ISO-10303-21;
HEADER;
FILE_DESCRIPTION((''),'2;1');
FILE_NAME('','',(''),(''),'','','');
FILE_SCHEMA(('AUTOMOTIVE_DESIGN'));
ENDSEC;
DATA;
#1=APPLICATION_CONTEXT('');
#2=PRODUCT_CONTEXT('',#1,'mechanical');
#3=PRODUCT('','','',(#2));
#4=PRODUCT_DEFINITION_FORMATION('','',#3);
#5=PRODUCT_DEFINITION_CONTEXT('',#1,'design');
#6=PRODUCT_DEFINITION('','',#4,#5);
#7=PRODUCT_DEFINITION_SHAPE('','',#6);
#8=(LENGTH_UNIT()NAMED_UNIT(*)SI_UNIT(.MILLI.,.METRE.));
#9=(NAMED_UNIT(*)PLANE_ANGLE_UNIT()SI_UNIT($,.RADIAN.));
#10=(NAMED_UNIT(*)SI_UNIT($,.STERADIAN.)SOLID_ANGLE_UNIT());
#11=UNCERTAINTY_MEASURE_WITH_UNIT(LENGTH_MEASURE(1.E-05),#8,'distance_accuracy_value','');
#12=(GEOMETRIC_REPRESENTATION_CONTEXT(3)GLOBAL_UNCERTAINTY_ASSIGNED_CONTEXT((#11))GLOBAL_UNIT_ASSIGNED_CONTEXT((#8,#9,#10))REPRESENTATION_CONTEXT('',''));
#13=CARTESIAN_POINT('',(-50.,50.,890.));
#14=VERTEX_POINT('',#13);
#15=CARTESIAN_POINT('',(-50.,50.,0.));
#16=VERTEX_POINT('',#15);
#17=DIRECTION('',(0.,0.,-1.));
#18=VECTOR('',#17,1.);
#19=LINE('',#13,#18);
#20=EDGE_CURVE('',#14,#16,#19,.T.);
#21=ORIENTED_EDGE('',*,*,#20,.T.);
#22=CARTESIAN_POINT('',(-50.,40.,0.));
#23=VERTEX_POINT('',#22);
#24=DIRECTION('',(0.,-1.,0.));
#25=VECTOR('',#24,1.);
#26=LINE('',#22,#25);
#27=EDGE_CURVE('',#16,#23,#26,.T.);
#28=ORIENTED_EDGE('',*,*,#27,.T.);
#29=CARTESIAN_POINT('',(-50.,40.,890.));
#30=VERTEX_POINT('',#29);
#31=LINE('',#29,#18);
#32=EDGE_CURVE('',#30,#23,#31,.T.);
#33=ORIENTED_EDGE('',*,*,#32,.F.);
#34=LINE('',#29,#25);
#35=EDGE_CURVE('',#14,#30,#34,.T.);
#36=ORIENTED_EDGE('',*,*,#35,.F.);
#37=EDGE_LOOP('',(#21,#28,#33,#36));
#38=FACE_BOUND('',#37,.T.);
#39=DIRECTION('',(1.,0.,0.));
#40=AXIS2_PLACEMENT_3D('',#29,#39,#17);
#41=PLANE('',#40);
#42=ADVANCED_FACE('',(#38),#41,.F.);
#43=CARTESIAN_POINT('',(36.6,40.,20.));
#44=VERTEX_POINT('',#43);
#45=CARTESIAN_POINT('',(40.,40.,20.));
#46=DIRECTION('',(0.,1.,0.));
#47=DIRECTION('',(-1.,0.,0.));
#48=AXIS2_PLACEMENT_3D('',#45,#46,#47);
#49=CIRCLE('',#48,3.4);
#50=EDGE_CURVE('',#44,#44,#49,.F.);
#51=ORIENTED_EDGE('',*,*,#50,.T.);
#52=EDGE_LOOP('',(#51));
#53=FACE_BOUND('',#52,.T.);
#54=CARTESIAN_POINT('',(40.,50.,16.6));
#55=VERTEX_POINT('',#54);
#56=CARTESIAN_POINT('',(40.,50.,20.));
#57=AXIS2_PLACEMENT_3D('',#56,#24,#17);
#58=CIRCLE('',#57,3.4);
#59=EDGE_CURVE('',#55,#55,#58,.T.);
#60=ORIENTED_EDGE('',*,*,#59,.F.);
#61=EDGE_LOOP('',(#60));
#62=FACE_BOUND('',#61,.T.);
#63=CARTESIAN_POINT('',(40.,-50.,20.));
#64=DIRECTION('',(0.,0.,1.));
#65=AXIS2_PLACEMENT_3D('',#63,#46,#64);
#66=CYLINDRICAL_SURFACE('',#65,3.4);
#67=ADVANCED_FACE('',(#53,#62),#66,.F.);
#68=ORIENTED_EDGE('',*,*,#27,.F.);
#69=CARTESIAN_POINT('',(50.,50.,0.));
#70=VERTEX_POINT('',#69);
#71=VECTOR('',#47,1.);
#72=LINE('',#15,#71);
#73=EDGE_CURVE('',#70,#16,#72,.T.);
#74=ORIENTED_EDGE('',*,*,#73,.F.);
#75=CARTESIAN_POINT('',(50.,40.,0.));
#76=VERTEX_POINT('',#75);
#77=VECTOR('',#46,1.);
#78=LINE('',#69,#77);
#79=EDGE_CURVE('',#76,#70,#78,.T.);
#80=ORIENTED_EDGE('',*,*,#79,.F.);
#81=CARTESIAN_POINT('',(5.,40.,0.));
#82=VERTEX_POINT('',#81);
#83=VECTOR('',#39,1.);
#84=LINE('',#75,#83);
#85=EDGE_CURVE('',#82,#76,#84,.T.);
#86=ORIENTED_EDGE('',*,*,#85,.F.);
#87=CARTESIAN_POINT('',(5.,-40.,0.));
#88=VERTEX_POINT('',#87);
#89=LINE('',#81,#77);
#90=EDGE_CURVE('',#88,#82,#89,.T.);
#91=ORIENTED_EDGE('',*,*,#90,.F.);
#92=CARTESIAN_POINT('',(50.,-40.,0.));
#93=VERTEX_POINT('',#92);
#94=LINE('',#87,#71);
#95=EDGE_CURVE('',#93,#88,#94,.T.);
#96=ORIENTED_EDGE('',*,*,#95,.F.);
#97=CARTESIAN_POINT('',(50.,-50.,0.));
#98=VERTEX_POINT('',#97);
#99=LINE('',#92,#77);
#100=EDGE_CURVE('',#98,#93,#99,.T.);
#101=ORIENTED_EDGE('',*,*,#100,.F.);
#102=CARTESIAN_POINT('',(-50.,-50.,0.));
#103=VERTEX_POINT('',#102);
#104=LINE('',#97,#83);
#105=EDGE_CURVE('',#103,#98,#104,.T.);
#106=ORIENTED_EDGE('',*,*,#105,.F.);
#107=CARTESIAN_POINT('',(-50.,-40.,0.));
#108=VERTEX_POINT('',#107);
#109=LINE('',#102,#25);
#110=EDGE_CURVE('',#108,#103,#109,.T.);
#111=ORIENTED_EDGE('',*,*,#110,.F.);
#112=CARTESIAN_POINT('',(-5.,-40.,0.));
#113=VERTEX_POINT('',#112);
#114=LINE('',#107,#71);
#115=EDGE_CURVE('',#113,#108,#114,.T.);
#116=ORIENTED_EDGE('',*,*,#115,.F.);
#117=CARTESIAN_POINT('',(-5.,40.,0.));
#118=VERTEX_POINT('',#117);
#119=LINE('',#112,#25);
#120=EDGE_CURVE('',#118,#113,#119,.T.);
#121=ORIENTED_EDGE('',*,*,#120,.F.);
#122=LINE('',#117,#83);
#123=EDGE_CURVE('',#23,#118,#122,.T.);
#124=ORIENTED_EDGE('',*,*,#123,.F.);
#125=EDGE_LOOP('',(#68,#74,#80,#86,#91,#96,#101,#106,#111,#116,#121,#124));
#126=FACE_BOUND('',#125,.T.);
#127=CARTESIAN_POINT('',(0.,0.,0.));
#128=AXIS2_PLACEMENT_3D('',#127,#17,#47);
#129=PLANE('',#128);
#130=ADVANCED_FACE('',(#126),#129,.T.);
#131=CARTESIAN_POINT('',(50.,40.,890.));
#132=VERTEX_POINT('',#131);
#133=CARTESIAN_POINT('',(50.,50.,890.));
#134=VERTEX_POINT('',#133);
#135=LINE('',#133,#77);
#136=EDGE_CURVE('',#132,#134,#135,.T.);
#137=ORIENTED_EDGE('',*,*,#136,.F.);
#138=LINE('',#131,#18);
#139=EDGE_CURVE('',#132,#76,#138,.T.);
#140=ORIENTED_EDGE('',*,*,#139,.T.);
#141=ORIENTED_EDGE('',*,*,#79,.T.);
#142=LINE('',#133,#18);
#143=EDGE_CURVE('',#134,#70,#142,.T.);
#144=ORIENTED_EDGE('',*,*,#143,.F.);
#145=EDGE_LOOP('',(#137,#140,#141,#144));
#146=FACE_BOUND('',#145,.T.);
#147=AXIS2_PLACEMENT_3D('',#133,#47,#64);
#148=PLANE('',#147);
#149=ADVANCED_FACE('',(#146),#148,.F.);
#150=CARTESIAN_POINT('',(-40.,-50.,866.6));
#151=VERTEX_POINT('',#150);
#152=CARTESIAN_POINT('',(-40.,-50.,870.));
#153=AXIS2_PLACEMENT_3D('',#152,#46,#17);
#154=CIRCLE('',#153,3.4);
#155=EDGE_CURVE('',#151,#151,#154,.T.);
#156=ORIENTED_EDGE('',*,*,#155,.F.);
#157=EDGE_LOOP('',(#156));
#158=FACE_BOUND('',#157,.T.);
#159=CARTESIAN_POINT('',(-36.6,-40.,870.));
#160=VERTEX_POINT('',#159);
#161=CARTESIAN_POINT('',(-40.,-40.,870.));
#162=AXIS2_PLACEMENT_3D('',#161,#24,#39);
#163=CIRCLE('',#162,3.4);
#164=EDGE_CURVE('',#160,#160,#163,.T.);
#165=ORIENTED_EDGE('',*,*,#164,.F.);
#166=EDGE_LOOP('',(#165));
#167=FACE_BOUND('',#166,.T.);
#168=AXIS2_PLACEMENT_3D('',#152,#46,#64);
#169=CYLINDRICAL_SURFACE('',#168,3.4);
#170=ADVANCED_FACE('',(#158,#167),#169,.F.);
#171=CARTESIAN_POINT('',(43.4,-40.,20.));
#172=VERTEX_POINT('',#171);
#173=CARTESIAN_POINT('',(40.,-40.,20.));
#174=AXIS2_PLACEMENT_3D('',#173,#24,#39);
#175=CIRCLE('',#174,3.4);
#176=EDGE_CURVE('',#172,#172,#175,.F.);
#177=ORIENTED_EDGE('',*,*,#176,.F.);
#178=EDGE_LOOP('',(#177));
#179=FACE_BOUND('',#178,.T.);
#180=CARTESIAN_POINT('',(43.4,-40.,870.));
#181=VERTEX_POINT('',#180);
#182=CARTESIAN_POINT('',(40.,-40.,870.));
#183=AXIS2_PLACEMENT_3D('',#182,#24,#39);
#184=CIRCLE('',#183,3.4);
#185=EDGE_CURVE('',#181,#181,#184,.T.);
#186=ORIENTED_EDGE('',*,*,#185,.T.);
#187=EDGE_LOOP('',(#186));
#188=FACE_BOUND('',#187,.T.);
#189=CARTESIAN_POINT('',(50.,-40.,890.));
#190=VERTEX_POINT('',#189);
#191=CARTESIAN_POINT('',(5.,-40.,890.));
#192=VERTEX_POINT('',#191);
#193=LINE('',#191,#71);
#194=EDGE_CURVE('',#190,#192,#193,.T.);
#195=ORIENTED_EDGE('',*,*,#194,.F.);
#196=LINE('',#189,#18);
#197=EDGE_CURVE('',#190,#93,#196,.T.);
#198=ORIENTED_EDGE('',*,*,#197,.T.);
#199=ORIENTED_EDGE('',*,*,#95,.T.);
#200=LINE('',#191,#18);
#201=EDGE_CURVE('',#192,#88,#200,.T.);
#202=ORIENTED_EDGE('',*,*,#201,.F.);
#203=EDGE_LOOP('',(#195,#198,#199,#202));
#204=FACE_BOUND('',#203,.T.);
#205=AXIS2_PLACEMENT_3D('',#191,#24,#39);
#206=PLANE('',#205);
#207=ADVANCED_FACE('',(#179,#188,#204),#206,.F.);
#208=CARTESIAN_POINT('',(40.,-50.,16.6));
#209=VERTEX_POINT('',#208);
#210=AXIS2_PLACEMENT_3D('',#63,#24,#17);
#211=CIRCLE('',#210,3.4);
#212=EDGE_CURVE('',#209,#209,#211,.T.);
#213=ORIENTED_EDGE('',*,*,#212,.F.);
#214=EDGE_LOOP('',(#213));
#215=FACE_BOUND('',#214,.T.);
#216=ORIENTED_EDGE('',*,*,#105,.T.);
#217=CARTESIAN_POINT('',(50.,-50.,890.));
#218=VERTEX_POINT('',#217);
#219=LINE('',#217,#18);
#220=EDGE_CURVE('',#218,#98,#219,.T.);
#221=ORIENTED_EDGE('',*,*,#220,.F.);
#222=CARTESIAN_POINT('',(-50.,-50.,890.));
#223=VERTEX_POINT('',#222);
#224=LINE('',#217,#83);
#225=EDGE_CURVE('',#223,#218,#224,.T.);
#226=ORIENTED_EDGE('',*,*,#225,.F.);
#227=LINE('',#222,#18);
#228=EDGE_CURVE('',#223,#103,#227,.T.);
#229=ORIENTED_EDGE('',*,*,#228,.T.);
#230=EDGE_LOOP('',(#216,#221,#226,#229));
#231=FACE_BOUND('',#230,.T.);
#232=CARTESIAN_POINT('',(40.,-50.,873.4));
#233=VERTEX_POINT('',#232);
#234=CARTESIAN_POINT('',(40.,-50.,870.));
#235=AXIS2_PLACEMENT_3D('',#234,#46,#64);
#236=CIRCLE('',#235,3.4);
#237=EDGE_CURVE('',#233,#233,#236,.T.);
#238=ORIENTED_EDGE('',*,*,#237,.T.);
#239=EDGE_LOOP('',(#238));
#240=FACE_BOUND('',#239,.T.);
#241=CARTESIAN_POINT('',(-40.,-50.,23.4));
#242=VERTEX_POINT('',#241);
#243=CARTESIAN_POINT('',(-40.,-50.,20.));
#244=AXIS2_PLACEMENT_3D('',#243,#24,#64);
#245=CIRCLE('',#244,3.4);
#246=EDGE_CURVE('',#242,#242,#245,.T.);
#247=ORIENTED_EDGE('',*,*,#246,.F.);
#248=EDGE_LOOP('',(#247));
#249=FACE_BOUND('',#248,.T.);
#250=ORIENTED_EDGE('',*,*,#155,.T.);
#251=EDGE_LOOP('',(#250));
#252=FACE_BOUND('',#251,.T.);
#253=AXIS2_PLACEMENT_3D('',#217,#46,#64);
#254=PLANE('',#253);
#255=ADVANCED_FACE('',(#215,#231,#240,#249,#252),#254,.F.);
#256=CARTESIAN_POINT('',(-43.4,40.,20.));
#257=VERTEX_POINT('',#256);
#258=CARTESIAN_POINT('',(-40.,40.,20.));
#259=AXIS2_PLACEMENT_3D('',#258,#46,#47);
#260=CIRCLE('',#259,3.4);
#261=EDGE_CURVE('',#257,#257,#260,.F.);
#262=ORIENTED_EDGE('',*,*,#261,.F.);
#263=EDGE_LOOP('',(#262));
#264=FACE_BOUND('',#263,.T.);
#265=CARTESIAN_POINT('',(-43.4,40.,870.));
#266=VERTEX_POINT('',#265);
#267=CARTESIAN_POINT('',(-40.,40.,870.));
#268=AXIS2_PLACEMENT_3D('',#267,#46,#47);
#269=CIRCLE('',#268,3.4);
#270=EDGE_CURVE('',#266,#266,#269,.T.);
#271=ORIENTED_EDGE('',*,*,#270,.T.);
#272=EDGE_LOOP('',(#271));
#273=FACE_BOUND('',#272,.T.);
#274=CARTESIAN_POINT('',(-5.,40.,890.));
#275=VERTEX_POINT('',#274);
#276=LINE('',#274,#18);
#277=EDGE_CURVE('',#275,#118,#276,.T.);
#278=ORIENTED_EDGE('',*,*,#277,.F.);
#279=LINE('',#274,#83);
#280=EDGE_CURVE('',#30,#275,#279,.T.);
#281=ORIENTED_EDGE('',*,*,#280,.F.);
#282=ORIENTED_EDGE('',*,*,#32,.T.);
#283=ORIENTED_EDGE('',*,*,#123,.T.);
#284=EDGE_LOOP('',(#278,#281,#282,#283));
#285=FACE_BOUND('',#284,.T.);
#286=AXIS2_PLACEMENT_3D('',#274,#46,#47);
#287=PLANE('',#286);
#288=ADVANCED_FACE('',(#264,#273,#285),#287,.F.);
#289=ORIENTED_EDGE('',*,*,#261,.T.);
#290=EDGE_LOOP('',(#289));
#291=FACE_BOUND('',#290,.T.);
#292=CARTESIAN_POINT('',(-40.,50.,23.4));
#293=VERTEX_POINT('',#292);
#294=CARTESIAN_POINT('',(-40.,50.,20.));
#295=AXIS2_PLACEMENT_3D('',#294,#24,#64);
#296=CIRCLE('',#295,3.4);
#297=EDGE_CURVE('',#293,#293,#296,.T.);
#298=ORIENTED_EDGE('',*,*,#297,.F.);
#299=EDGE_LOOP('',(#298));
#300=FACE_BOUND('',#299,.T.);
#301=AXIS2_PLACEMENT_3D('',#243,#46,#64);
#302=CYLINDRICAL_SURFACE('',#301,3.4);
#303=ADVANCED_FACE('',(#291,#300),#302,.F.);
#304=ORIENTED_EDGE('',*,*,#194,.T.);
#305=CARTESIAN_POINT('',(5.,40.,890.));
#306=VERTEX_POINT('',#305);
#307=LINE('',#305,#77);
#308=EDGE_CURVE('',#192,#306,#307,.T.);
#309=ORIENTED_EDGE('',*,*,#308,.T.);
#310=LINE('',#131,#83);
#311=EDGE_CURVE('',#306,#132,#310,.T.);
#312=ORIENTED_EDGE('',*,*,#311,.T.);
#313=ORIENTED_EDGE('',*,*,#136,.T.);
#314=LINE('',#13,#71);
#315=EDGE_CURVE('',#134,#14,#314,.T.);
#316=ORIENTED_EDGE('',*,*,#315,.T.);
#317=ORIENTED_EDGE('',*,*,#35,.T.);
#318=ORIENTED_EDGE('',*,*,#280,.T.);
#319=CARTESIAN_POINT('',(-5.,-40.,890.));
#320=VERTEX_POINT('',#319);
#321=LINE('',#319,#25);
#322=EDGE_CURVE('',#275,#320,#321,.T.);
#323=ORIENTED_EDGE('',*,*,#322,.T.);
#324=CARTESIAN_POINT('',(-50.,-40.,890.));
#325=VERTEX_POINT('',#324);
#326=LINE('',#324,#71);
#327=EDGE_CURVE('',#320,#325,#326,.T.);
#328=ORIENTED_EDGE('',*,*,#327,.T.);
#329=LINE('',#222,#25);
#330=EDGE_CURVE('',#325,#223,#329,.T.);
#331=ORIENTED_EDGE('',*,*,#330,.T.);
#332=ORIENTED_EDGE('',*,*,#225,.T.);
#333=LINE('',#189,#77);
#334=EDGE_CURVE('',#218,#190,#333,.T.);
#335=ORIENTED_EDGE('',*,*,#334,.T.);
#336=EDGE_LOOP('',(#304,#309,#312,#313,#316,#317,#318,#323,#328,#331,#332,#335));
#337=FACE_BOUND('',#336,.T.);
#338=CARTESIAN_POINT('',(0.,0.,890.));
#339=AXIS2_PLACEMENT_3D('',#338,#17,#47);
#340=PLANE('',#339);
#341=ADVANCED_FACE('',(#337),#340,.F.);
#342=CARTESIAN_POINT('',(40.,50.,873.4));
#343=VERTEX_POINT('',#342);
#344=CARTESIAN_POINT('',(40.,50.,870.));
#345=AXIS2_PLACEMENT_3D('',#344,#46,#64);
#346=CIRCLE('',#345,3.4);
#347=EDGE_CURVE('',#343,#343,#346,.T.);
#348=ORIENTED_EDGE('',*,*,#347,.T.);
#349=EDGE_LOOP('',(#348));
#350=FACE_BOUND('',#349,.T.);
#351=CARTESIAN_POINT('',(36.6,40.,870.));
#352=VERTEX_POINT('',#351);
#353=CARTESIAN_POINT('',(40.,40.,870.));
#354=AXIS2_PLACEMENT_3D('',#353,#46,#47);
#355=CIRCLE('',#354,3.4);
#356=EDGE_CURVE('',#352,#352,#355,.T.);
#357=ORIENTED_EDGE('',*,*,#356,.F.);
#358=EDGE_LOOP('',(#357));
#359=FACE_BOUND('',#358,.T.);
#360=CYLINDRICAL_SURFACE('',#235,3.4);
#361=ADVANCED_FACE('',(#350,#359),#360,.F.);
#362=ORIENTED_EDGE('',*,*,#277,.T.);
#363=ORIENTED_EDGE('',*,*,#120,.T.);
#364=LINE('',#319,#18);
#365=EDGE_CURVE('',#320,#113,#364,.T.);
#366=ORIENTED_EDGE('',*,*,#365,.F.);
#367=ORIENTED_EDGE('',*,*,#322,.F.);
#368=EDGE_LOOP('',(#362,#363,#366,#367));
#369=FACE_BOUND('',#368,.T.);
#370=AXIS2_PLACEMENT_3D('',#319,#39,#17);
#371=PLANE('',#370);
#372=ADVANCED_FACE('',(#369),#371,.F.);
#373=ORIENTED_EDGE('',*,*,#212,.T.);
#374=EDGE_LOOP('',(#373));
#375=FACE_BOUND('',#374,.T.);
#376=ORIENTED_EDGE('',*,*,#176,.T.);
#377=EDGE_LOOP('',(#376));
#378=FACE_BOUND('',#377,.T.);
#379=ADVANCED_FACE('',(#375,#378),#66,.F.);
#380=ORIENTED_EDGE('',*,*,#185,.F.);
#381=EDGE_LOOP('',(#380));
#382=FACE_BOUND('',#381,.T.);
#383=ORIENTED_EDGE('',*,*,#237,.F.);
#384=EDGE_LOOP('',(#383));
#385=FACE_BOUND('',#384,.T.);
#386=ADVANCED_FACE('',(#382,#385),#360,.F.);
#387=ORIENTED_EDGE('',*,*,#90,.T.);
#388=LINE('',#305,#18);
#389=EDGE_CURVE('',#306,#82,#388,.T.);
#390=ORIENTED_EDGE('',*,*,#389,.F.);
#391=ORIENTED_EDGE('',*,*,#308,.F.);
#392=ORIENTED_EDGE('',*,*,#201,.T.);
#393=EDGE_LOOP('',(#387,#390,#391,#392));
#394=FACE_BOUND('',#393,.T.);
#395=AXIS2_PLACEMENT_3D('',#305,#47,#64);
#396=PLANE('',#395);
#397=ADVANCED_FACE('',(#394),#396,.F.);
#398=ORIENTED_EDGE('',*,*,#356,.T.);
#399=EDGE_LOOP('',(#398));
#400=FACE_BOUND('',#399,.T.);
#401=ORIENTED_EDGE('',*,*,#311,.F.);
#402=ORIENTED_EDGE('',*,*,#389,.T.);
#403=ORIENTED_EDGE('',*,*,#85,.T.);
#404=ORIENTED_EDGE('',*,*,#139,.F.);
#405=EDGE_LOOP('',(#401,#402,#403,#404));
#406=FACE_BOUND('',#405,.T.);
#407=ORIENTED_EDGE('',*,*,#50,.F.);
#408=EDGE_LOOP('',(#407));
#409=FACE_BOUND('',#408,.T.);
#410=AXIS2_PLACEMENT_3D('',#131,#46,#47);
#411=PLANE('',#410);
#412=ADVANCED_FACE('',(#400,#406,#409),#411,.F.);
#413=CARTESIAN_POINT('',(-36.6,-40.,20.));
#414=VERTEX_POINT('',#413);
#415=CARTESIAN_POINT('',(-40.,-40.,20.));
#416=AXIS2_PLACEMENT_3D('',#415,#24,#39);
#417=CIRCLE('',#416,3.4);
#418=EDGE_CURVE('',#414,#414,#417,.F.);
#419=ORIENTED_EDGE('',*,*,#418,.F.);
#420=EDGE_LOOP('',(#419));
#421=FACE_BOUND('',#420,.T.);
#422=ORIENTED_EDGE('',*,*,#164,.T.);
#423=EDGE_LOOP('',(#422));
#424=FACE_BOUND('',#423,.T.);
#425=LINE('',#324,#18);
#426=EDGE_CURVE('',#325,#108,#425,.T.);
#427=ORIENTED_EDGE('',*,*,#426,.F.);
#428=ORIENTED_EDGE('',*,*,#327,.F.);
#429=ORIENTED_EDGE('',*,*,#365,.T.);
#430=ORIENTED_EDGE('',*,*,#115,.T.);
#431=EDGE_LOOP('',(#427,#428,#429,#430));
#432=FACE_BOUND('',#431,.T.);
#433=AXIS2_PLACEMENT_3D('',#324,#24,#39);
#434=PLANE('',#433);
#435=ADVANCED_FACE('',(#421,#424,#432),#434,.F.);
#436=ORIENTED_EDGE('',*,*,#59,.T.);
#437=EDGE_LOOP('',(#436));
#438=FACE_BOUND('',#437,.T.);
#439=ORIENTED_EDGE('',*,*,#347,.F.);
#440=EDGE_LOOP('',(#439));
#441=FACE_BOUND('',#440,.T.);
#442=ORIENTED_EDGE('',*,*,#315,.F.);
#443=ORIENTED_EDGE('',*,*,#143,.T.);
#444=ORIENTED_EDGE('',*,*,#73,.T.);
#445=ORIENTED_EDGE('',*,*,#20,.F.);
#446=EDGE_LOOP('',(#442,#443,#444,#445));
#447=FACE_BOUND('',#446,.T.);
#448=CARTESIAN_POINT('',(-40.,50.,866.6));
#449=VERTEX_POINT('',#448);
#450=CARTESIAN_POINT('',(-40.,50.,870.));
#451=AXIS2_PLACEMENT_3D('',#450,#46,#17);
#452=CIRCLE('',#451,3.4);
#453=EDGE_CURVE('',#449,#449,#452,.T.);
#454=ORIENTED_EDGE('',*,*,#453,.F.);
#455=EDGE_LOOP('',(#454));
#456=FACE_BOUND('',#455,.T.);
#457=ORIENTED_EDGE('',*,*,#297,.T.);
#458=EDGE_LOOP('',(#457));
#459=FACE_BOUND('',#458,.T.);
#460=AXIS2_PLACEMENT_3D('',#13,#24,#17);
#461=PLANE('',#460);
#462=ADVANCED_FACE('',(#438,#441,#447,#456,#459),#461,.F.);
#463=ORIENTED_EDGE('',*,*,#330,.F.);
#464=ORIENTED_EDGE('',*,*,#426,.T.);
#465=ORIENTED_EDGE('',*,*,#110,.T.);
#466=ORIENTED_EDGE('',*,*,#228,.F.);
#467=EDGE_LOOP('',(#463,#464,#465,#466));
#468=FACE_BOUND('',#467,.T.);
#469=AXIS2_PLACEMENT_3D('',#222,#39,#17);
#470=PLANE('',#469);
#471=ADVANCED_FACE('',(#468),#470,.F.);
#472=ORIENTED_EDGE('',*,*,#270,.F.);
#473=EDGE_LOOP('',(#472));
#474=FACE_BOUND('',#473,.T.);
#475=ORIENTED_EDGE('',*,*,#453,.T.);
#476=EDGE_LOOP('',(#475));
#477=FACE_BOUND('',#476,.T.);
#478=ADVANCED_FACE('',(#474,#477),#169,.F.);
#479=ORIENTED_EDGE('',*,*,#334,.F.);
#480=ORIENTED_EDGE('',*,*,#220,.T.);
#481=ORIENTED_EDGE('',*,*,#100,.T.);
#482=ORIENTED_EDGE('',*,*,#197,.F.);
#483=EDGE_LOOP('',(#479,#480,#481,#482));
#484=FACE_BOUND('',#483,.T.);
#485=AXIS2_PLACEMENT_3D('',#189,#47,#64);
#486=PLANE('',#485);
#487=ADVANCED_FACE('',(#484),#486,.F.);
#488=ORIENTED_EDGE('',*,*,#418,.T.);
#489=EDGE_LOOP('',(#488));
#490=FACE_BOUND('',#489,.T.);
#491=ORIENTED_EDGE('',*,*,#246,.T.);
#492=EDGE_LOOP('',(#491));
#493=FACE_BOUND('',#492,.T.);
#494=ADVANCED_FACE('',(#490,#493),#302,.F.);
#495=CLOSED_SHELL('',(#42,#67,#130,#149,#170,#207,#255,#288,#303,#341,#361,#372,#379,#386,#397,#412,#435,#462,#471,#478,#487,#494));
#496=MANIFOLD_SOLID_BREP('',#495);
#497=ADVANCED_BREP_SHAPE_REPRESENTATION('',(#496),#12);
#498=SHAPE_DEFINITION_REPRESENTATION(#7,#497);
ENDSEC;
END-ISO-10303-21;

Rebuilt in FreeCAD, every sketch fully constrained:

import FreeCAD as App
import Part
import Sketcher

V = App.Vector
Q = App.Units.Quantity


def add_polygon(sketch, points):
    """Adds a closed chain of lines whose ends are joined by coincident constraints."""
    first, n = sketch.GeometryCount, len(points)
    for a, b in zip(points, points[1:] + points[:1]):
        sketch.addGeometry(Part.LineSegment(App.Vector(*a, 0), App.Vector(*b, 0)), False)
    for i in range(n):
        sketch.addConstraint(Sketcher.Constraint("Coincident", first + i, 2, first + (i + 1) % n, 1))

doc = App.newDocument("Part")
params = doc.addObject("Spreadsheet::Sheet", "Params")
for row, (alias, value) in enumerate([
    ("sketch1_width", "100 mm"),
    ("sketch1_width2", "45 mm"),
    ("sketch1_height", "10 mm"),
    ("sketch1_height2", "80 mm"),
    ("pad1_length", "890 mm"),
    ("sketch2_diameter", "6.8 mm"),
], start=1):
    params.set(f"A{row}", alias)
    params.set(f"B{row}", "=" + value)
    params.setAlias(f"B{row}", alias)

body = doc.addObject("PartDesign::Body", "Body")

# Sketch on XY plane
sketch1 = doc.addObject("Sketcher::SketchObject", "Sketch")
body.addObject(sketch1)
sketch1.AttachmentSupport = (doc.XY_Plane, [""])
sketch1.MapMode = "FlatFace"
add_polygon(sketch1, [(50, 50), (-50, 50), (-50, 40), (-5, 40), (-5, -40), (-50, -40), (-50, -50), (50, -50), (50, -40), (5, -40), (5, 40), (50, 40)])  # lines 0-11
sketch1.addConstraint(Sketcher.Constraint("Horizontal", 0))
sketch1.addConstraint(Sketcher.Constraint("Vertical", 1))
sketch1.addConstraint(Sketcher.Constraint("Horizontal", 2))
sketch1.addConstraint(Sketcher.Constraint("Vertical", 3))
sketch1.addConstraint(Sketcher.Constraint("Horizontal", 4))
sketch1.addConstraint(Sketcher.Constraint("Vertical", 5))
sketch1.addConstraint(Sketcher.Constraint("Horizontal", 6))
sketch1.addConstraint(Sketcher.Constraint("Vertical", 7))
sketch1.addConstraint(Sketcher.Constraint("Horizontal", 8))
sketch1.addConstraint(Sketcher.Constraint("Vertical", 9))
sketch1.addConstraint(Sketcher.Constraint("Horizontal", 10))
sketch1.addConstraint(Sketcher.Constraint("Vertical", 11))
sketch1.addConstraint(Sketcher.Constraint("Symmetric", 0, 2, 6, 2, -1, 1))
sketch1.addConstraint(Sketcher.Constraint("Symmetric", 2, 2, 8, 2, -1, 1))
sketch1.addConstraint(Sketcher.Constraint("Symmetric", 4, 2, 10, 2, -1, 1))
sketch1.addConstraint(Sketcher.Constraint("Symmetric", 4, 2, 7, 2, -2))
sketch1.addConstraint(Sketcher.Constraint("DistanceX", 0, 2, 0, 1, Q("100 mm")))
sketch1.addConstraint(Sketcher.Constraint("DistanceX", 2, 1, 2, 2, Q("45 mm")))
sketch1.addConstraint(Sketcher.Constraint("DistanceY", 1, 2, 1, 1, Q("10 mm")))
sketch1.addConstraint(Sketcher.Constraint("DistanceY", 3, 2, 3, 1, Q("80 mm")))
sketch1.setExpression("Constraints[28]", "Params.sketch1_width")
sketch1.setExpression("Constraints[29]", "Params.sketch1_width2")
sketch1.setExpression("Constraints[30]", "Params.sketch1_height")
sketch1.setExpression("Constraints[31]", "Params.sketch1_height2")
pad1 = doc.addObject("PartDesign::Pad", "Pad")
body.addObject(pad1)
pad1.Profile = sketch1
pad1.setExpression("Length", "Params.pad1_length")

# Sketch on XZ plane
sketch2 = doc.addObject("Sketcher::SketchObject", "Sketch001")
body.addObject(sketch2)
sketch2.AttachmentSupport = (doc.XZ_Plane, [""])
sketch2.MapMode = "FlatFace"
sketch2.AttachmentOffset = App.Placement(V(0, 0, -50), App.Rotation())
sketch2.addGeometry(Part.Circle(V(40, 870, 0), V(0, 0, 1), 3.4), False)
sketch2.addGeometry(Part.Circle(V(-40, 870, 0), V(0, 0, 1), 3.4), False)
sketch2.addConstraint(Sketcher.Constraint("Equal", 0, 1))
sketch2.addConstraint(Sketcher.Constraint("Symmetric", 0, 3, 1, 3, -2))
sketch2.addConstraint(Sketcher.Constraint("Diameter", 0, Q("6.8 mm")))
sketch2.addConstraint(Sketcher.Constraint("DistanceX", -1, 1, 0, 3, Q("40 mm")))
sketch2.addConstraint(Sketcher.Constraint("DistanceY", -1, 1, 0, 3, Q("870 mm")))
sketch2.setExpression("Constraints[2]", "Params.sketch2_diameter")
pocket1 = doc.addObject("PartDesign::Pocket", "Pocket")
body.addObject(pocket1)
pocket1.Profile = sketch2
pocket1.Type = "ThroughAll"
pocket1.Reversed = True
doc.recompute()

datumplane = doc.addObject("PartDesign::Plane", "DatumPlane")
body.addObject(datumplane)
datumplane.AttachmentSupport = (doc.XY_Plane, [""])
datumplane.MapMode = "FlatFace"
datumplane.AttachmentOffset = App.Placement(V(0, 0, 445), App.Rotation())
mirrored = doc.addObject("PartDesign::Mirrored", "Mirrored")
body.addObject(mirrored)
mirrored.Originals = [pocket1]
mirrored.MirrorPlane = (datumplane, [""])
body.Tip = mirrored

doc.recompute()
